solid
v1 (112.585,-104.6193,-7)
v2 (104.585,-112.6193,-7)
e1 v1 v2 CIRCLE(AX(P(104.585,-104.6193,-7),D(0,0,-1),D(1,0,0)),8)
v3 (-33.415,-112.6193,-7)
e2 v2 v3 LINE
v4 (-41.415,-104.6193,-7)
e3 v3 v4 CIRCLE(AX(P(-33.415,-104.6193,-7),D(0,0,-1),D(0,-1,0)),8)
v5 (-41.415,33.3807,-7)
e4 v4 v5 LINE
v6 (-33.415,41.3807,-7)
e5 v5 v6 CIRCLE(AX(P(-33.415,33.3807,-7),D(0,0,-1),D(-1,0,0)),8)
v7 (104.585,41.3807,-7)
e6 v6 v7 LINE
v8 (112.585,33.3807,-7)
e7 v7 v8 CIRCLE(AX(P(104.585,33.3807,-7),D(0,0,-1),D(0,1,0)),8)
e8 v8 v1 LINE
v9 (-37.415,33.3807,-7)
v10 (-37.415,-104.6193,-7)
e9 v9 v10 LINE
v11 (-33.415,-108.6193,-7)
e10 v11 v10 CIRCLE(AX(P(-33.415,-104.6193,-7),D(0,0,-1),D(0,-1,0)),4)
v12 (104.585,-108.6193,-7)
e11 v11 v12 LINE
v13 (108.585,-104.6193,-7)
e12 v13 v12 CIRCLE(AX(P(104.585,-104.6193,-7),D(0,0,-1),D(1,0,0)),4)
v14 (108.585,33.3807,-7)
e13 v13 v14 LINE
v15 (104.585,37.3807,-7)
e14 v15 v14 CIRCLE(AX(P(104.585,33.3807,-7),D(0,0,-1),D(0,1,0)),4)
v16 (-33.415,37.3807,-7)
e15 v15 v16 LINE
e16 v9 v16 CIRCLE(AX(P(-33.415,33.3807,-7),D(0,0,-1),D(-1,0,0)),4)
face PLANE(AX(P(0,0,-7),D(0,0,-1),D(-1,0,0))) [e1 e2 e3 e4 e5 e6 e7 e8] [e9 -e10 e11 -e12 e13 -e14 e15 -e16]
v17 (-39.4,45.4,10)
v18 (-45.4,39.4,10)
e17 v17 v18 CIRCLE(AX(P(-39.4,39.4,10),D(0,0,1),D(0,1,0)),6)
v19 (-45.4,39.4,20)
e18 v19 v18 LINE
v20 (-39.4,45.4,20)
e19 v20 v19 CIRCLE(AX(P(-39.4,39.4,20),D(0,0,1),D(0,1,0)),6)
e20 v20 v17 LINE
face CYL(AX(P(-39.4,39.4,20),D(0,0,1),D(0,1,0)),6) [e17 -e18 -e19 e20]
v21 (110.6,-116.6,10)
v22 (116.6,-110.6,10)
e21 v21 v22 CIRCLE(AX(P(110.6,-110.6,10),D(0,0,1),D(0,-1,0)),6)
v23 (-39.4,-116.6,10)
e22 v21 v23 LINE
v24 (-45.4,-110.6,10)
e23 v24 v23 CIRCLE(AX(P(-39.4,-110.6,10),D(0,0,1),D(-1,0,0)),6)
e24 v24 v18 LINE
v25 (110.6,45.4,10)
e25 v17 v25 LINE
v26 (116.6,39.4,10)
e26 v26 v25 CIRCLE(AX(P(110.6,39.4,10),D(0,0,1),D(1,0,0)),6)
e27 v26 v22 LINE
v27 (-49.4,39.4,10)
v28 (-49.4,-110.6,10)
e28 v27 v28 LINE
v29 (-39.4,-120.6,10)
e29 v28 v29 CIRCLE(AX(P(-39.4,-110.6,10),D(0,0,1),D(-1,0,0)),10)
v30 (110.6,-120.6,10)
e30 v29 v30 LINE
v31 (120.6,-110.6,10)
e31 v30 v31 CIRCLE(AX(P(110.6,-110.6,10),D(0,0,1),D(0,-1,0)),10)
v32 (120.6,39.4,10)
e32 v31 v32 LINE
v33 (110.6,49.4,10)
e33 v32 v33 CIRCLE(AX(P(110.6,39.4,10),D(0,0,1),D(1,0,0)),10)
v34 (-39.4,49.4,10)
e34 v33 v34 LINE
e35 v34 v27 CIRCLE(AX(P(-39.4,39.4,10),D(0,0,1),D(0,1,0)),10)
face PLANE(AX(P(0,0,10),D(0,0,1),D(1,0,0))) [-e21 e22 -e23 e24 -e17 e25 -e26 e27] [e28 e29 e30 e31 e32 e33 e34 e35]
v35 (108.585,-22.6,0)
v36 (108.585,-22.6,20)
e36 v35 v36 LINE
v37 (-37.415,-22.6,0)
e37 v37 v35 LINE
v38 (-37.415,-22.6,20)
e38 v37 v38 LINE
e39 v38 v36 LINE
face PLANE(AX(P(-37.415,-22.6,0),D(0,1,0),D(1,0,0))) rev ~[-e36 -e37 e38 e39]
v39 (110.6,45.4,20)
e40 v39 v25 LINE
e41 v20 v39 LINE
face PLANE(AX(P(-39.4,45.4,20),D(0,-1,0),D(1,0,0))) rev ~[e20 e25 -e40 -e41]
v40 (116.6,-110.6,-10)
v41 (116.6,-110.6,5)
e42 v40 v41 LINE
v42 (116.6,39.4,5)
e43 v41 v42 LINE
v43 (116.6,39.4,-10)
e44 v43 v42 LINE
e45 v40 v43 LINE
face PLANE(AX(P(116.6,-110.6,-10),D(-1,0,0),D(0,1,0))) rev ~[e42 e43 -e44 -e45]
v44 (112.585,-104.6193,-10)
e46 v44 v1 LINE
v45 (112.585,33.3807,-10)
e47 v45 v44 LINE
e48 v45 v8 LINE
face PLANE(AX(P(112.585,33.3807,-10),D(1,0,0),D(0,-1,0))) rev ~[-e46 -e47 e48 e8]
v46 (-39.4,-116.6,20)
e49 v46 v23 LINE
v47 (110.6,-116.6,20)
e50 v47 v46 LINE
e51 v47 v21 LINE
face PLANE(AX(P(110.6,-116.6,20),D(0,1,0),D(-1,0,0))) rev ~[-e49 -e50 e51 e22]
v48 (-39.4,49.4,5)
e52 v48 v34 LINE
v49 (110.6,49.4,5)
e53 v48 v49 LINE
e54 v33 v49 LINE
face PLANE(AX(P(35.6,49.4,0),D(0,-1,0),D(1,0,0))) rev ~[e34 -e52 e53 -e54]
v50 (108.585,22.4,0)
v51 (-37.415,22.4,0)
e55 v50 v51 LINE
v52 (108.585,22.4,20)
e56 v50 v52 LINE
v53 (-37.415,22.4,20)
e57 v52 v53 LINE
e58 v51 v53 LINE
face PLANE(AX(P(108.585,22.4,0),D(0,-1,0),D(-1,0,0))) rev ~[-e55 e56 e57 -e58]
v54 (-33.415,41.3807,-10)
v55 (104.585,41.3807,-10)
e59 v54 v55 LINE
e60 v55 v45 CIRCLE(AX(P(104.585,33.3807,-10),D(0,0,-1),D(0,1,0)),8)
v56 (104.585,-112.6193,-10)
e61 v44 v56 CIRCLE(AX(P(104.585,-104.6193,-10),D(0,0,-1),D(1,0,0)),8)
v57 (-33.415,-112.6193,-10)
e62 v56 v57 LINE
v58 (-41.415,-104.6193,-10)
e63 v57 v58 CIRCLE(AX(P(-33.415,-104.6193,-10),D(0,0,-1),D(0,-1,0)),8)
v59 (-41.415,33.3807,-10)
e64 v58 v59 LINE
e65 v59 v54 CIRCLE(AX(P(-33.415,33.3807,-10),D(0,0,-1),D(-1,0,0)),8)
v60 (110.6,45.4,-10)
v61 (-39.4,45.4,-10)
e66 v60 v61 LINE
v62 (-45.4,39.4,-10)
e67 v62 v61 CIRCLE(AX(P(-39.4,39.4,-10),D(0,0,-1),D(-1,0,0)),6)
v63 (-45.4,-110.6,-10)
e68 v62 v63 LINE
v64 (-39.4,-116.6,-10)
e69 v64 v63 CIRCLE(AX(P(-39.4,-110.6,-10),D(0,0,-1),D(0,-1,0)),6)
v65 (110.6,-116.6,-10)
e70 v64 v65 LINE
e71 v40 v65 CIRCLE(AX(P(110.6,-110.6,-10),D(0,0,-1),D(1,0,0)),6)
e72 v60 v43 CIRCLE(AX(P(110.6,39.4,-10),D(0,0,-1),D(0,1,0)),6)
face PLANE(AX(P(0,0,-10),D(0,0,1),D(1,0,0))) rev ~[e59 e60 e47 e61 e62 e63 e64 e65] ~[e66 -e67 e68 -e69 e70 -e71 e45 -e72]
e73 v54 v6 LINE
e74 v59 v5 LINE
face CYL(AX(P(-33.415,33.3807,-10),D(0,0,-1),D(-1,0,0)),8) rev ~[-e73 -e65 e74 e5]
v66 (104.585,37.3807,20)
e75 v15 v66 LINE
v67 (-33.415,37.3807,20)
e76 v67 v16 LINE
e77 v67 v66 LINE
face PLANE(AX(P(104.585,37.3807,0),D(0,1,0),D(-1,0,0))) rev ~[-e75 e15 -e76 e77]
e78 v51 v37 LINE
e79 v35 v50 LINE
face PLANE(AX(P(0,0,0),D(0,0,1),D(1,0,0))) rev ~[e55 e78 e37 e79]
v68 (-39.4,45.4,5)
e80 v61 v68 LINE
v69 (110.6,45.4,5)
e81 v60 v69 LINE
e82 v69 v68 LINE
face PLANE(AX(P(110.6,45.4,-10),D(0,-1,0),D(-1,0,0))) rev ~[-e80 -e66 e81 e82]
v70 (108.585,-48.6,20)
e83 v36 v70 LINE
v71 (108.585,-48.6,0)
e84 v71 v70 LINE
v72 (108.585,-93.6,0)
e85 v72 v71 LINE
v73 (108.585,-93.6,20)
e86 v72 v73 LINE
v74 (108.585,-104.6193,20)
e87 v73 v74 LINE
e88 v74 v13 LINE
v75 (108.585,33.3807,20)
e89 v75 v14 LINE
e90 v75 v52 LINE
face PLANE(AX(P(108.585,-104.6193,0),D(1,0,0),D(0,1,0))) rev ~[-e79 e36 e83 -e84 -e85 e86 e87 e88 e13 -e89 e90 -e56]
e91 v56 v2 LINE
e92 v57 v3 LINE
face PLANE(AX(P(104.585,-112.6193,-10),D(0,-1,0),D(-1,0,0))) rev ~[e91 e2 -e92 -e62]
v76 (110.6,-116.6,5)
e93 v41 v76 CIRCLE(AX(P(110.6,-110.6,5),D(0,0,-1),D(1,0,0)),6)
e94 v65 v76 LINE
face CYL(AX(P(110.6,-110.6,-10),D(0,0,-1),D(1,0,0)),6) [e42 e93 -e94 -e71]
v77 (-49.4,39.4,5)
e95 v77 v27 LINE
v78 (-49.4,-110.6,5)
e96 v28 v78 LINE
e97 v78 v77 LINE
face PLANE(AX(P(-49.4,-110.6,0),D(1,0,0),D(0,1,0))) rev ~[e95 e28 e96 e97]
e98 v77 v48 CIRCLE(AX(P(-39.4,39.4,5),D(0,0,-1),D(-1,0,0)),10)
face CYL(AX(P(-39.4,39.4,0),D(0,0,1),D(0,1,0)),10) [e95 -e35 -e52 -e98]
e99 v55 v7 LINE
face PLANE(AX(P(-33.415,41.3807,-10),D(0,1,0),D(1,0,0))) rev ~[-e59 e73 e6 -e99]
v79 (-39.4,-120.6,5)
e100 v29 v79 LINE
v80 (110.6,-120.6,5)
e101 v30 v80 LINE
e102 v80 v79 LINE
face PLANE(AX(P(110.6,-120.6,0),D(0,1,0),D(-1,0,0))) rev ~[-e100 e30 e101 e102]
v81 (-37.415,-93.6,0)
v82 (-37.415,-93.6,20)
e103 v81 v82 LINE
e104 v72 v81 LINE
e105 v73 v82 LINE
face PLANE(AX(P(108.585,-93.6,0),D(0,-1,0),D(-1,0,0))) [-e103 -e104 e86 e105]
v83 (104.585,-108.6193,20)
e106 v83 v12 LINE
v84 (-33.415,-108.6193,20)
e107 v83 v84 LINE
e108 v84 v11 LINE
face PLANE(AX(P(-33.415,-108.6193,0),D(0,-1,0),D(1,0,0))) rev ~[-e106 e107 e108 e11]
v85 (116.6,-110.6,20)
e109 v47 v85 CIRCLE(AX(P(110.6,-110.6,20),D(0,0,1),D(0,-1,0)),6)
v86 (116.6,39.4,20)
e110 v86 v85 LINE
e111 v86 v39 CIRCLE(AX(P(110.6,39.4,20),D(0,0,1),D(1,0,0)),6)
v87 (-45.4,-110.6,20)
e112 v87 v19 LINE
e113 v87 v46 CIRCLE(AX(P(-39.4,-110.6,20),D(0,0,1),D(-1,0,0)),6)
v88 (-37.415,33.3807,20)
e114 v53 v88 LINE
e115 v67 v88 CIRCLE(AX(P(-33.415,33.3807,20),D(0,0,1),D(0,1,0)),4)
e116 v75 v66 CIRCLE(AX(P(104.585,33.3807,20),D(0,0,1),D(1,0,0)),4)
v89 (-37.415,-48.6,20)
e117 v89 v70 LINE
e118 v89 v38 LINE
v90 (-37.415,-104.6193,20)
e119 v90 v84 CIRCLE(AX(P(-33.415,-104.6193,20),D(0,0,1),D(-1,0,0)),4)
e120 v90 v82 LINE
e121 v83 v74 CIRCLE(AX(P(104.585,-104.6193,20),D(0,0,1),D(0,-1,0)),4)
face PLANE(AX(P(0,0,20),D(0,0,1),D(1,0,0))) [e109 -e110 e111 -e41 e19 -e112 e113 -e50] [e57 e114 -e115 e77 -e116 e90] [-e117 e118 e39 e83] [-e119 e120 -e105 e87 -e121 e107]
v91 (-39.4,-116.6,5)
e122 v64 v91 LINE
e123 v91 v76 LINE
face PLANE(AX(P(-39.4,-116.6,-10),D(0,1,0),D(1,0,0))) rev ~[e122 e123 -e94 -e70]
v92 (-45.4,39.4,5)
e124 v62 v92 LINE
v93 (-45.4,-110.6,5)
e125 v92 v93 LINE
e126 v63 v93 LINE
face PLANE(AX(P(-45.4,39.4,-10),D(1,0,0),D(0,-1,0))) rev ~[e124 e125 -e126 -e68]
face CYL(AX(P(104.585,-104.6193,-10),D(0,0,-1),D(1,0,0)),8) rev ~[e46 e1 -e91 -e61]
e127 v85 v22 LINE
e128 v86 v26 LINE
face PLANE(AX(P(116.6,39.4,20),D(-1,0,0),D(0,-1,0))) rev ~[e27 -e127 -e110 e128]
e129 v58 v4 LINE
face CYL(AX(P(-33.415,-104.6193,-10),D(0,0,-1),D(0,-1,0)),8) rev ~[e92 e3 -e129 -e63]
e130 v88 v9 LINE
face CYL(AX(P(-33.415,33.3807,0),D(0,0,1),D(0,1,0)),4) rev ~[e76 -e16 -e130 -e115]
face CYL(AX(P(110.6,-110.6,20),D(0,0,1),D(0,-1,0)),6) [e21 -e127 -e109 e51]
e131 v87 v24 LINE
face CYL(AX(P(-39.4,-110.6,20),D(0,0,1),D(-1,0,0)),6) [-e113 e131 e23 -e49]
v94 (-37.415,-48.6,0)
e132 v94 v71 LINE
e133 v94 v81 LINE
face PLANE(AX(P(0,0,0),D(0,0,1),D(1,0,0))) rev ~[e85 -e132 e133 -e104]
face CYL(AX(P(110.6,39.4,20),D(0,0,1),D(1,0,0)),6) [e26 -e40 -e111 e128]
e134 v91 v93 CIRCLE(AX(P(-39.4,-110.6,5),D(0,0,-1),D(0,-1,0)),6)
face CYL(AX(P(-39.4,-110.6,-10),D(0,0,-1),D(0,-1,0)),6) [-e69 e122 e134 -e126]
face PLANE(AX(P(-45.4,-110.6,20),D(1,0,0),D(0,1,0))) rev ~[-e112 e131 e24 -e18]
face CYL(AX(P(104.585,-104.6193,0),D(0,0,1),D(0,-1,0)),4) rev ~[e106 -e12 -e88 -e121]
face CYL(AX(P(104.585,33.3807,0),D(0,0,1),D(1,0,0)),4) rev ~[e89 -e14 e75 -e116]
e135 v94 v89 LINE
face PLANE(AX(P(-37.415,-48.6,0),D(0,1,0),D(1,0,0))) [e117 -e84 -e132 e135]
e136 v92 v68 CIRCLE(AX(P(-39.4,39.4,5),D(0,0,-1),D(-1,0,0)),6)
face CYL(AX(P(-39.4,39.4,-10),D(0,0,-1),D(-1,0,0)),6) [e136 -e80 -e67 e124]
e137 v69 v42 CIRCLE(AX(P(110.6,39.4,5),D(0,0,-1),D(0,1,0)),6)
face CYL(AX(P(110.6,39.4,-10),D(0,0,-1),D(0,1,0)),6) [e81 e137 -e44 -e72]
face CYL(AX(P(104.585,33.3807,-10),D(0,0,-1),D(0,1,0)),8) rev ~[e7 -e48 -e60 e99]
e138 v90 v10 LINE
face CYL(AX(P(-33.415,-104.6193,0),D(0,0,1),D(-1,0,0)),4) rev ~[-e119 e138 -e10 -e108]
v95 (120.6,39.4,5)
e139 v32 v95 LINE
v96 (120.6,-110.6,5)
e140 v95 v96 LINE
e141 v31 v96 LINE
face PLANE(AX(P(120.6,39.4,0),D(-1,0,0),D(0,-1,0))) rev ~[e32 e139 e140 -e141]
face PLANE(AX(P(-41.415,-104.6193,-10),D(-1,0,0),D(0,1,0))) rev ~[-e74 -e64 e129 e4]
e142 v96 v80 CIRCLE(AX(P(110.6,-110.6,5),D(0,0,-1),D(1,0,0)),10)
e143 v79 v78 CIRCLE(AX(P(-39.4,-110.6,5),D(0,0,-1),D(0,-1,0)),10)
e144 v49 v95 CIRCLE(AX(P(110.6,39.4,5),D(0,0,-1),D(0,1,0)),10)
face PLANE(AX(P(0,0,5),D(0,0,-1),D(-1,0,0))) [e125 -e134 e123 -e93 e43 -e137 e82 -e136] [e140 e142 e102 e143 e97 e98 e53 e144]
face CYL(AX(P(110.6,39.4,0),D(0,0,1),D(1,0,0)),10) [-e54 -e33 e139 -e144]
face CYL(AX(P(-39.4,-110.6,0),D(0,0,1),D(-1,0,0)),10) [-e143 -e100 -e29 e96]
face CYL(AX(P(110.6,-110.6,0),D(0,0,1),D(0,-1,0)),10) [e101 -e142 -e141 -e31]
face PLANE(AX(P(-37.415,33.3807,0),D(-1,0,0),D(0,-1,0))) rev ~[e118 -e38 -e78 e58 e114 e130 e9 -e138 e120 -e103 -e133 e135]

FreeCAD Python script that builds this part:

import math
import FreeCAD as App
import Part
import Sketcher
from FreeCAD import Vector
Q = App.Units.Quantity

doc = App.newDocument("Part")
body = doc.addObject("PartDesign::Body", "Body")

# Sketch on XY plane
sketch1 = body.newObject("Sketcher::SketchObject", "Sketch")
sketch1.AttachmentSupport = (doc.getObject("XY_Plane"), [""])
sketch1.MapMode = "FlatFace"
sketch1.addGeometry([
    Part.LineSegment(Vector(110.6, 49.4, 0), Vector(-39.4, 49.4, 0)),  # 0
    Part.ArcOfCircle(Part.Circle(Vector(-39.4, 39.4, 0), Vector(0, 0, 1), 10), math.radians(90), math.radians(180)),  # 1
    Part.LineSegment(Vector(-49.4, 39.4, 0), Vector(-49.4, -110.6, 0)),  # 2
    Part.ArcOfCircle(Part.Circle(Vector(-39.4, -110.6, 0), Vector(0, 0, 1), 10), math.radians(180), math.radians(270)),  # 3
    Part.LineSegment(Vector(-39.4, -120.6, 0), Vector(110.6, -120.6, 0)),  # 4
    Part.ArcOfCircle(Part.Circle(Vector(110.6, -110.6, 0), Vector(0, 0, 1), 10), math.radians(-90), math.radians(0)),  # 5
    Part.LineSegment(Vector(120.6, -110.6, 0), Vector(120.6, 39.4, 0)),  # 6
    Part.ArcOfCircle(Part.Circle(Vector(110.6, 39.4, 0), Vector(0, 0, 1), 10), math.radians(0), math.radians(90)),  # 7
    Part.LineSegment(Vector(-33.4, 37.4, 0), Vector(104.6, 37.4, 0)),  # 8
    Part.ArcOfCircle(Part.Circle(Vector(104.6, 33.4, 0), Vector(0, 0, 1), 4), math.radians(0), math.radians(90)),  # 9
    Part.LineSegment(Vector(108.6, 33.4, 0), Vector(108.6, -104.6, 0)),  # 10
    Part.ArcOfCircle(Part.Circle(Vector(104.6, -104.6, 0), Vector(0, 0, 1), 4), math.radians(-90), math.radians(0)),  # 11
    Part.LineSegment(Vector(104.6, -108.6, 0), Vector(-33.4, -108.6, 0)),  # 12
    Part.ArcOfCircle(Part.Circle(Vector(-33.4, -104.6, 0), Vector(0, 0, 1), 4), math.radians(180), math.radians(270)),  # 13
    Part.LineSegment(Vector(-37.4, -104.6, 0), Vector(-37.4, 33.4, 0)),  # 14
    Part.ArcOfCircle(Part.Circle(Vector(-33.4, 33.4, 0), Vector(0, 0, 1), 4), math.radians(90), math.radians(180)),  # 15
], False)
sketch1.addConstraint([
    Sketcher.Constraint("Tangent", 0, 2, 1, 1),
    Sketcher.Constraint("Tangent", 1, 2, 2, 1),
    Sketcher.Constraint("Tangent", 2, 2, 3, 1),
    Sketcher.Constraint("Tangent", 3, 2, 4, 1),
    Sketcher.Constraint("Tangent", 4, 2, 5, 1),
    Sketcher.Constraint("Tangent", 5, 2, 6, 1),
    Sketcher.Constraint("Tangent", 6, 2, 7, 1),
    Sketcher.Constraint("Tangent", 7, 2, 0, 1),
    Sketcher.Constraint("Tangent", 8, 2, 9, 2),
    Sketcher.Constraint("Tangent", 9, 1, 10, 1),
    Sketcher.Constraint("Tangent", 10, 2, 11, 2),
    Sketcher.Constraint("Tangent", 11, 1, 12, 1),
    Sketcher.Constraint("Tangent", 12, 2, 13, 2),
    Sketcher.Constraint("Tangent", 13, 1, 14, 1),
    Sketcher.Constraint("Tangent", 14, 2, 15, 2),
    Sketcher.Constraint("Tangent", 15, 1, 8, 1),
    Sketcher.Constraint("Horizontal", 0),
    Sketcher.Constraint("Vertical", 2),
    Sketcher.Constraint("Horizontal", 4),
    Sketcher.Constraint("Vertical", 6),
    Sketcher.Constraint("Horizontal", 8),
    Sketcher.Constraint("Vertical", 10),
    Sketcher.Constraint("Horizontal", 12),
    Sketcher.Constraint("Vertical", 14),
    Sketcher.Constraint("Equal", 1, 3),
    Sketcher.Constraint("Equal", 3, 5),
    Sketcher.Constraint("Equal", 5, 7),
    Sketcher.Constraint("Equal", 9, 11),
    Sketcher.Constraint("Equal", 11, 13),
    Sketcher.Constraint("Equal", 13, 15),
    Sketcher.Constraint("Equal", 4, 2),
    Sketcher.Constraint("Equal", 12, 10),
    Sketcher.Constraint("Radius", 1, Q("10 mm")),
    Sketcher.Constraint("Radius", 9, Q("4 mm")),
    Sketcher.Constraint("DistanceX", 0, 2, 0, 1, Q("150 mm")),
    Sketcher.Constraint("DistanceX", 8, 1, 8, 2, Q("138 mm")),
    Sketcher.Constraint("DistanceX", 1, 3, -1, 1, Q("39.4 mm")),
    Sketcher.Constraint("DistanceY", -1, 1, 1, 3, Q("39.4 mm")),
    Sketcher.Constraint("DistanceX", -1, 1, 9, 3, Q("104.585 mm")),
    Sketcher.Constraint("DistanceY", -1, 1, 9, 3, Q("33.3807 mm")),
])
pad1 = body.newObject("PartDesign::Pad", "Pad")
pad1.Profile = sketch1
pad1.Length = 10
pad1.Reversed = True

# Sketch on XY plane
sketch2 = body.newObject("Sketcher::SketchObject", "Sketch001")
sketch2.AttachmentSupport = (doc.getObject("XY_Plane"), [""])
sketch2.MapMode = "FlatFace"
sketch2.addGeometry([
    Part.ArcOfCircle(Part.Circle(Vector(110.6, 39.4, 0), Vector(0, 0, 1), 10), math.radians(0), math.radians(90)),  # 0
    Part.LineSegment(Vector(110.6, 49.4, 0), Vector(-39.4, 49.4, 0)),  # 1
    Part.ArcOfCircle(Part.Circle(Vector(-39.4, 39.4, 0), Vector(0, 0, 1), 10), math.radians(90), math.radians(180)),  # 2
    Part.LineSegment(Vector(-49.4, 39.4, 0), Vector(-49.4, -110.6, 0)),  # 3
    Part.ArcOfCircle(Part.Circle(Vector(-39.4, -110.6, 0), Vector(0, 0, 1), 10), math.radians(180), math.radians(270)),  # 4
    Part.LineSegment(Vector(-39.4, -120.6, 0), Vector(110.6, -120.6, 0)),  # 5
    Part.ArcOfCircle(Part.Circle(Vector(110.6, -110.6, 0), Vector(0, 0, 1), 10), math.radians(-90), math.radians(0)),  # 6
    Part.LineSegment(Vector(120.6, -110.6, 0), Vector(120.6, 39.4, 0)),  # 7
    Part.LineSegment(Vector(-37.4, -93.6, 0), Vector(108.6, -93.6, 0)),  # 8
    Part.LineSegment(Vector(108.6, -93.6, 0), Vector(108.6, -104.6, 0)),  # 9
    Part.ArcOfCircle(Part.Circle(Vector(104.6, -104.6, 0), Vector(0, 0, 1), 4), math.radians(-90), math.radians(0)),  # 10
    Part.LineSegment(Vector(104.6, -108.6, 0), Vector(-33.4, -108.6, 0)),  # 11
    Part.ArcOfCircle(Part.Circle(Vector(-33.4, -104.6, 0), Vector(0, 0, 1), 4), math.radians(180), math.radians(270)),  # 12
    Part.LineSegment(Vector(-37.4, -104.6, 0), Vector(-37.4, -93.6, 0)),  # 13
    Part.LineSegment(Vector(108.6, -48.6, 0), Vector(-37.4, -48.6, 0)),  # 14
    Part.LineSegment(Vector(-37.4, -48.6, 0), Vector(-37.4, -22.6, 0)),  # 15
    Part.LineSegment(Vector(-37.4, -22.6, 0), Vector(108.6, -22.6, 0)),  # 16
    Part.LineSegment(Vector(108.6, -22.6, 0), Vector(108.6, -48.6, 0)),  # 17
    Part.LineSegment(Vector(108.6, 33.4, 0), Vector(108.6, 22.4, 0)),  # 18
    Part.LineSegment(Vector(108.6, 22.4, 0), Vector(-37.4, 22.4, 0)),  # 19
    Part.LineSegment(Vector(-37.4, 22.4, 0), Vector(-37.4, 33.4, 0)),  # 20
    Part.ArcOfCircle(Part.Circle(Vector(-33.4, 33.4, 0), Vector(0, 0, 1), 4), math.radians(90), math.radians(180)),  # 21
    Part.LineSegment(Vector(-33.4, 37.4, 0), Vector(104.6, 37.4, 0)),  # 22
    Part.ArcOfCircle(Part.Circle(Vector(104.6, 33.4, 0), Vector(0, 0, 1), 4), math.radians(0), math.radians(90)),  # 23
], False)
sketch2.addConstraint([
    Sketcher.Constraint("Tangent", 0, 2, 1, 1),
    Sketcher.Constraint("Tangent", 1, 2, 2, 1),
    Sketcher.Constraint("Tangent", 2, 2, 3, 1),
    Sketcher.Constraint("Tangent", 3, 2, 4, 1),
    Sketcher.Constraint("Tangent", 4, 2, 5, 1),
    Sketcher.Constraint("Tangent", 5, 2, 6, 1),
    Sketcher.Constraint("Tangent", 6, 2, 7, 1),
    Sketcher.Constraint("Tangent", 7, 2, 0, 1),
    Sketcher.Constraint("Coincident", 8, 2, 9, 1),
    Sketcher.Constraint("Tangent", 9, 2, 10, 2),
    Sketcher.Constraint("Tangent", 10, 1, 11, 1),
    Sketcher.Constraint("Tangent", 11, 2, 12, 2),
    Sketcher.Constraint("Tangent", 12, 1, 13, 1),
    Sketcher.Constraint("Coincident", 13, 2, 8, 1),
    Sketcher.Constraint("Coincident", 14, 2, 15, 1),
    Sketcher.Constraint("Coincident", 15, 2, 16, 1),
    Sketcher.Constraint("Coincident", 16, 2, 17, 1),
    Sketcher.Constraint("Coincident", 17, 2, 14, 1),
    Sketcher.Constraint("Coincident", 18, 2, 19, 1),
    Sketcher.Constraint("Coincident", 19, 2, 20, 1),
    Sketcher.Constraint("Tangent", 20, 2, 21, 2),
    Sketcher.Constraint("Tangent", 21, 1, 22, 1),
    Sketcher.Constraint("Tangent", 22, 2, 23, 2),
    Sketcher.Constraint("Tangent", 23, 1, 18, 1),
    Sketcher.Constraint("Horizontal", 1),
    Sketcher.Constraint("Vertical", 3),
    Sketcher.Constraint("Horizontal", 5),
    Sketcher.Constraint("Vertical", 7),
    Sketcher.Constraint("Horizontal", 8),
    Sketcher.Constraint("Vertical", 9),
    Sketcher.Constraint("Horizontal", 11),
    Sketcher.Constraint("Vertical", 13),
    Sketcher.Constraint("Horizontal", 14),
    Sketcher.Constraint("Vertical", 15),
    Sketcher.Constraint("Horizontal", 16),
    Sketcher.Constraint("Vertical", 17),
    Sketcher.Constraint("Vertical", 18),
    Sketcher.Constraint("Horizontal", 19),
    Sketcher.Constraint("Vertical", 20),
    Sketcher.Constraint("Horizontal", 22),
    Sketcher.Constraint("Equal", 0, 2),
    Sketcher.Constraint("Equal", 2, 4),
    Sketcher.Constraint("Equal", 4, 6),
    Sketcher.Constraint("Equal", 10, 12),
    Sketcher.Constraint("Equal", 12, 21),
    Sketcher.Constraint("Equal", 21, 23),
    Sketcher.Constraint("Vertical", 12, 3, 21, 3),
    Sketcher.Constraint("Vertical", 10, 3, 23, 3),
    Sketcher.Constraint("Vertical", 13, 2, 14, 2),
    Sketcher.Constraint("Vertical", 9, 2, 16, 2),
    Sketcher.Constraint("Equal", 5, 3),
    Sketcher.Constraint("Radius", 0, Q("10 mm")),
    Sketcher.Constraint("Radius", 10, Q("4 mm")),
    Sketcher.Constraint("DistanceY", 13, 2, 14, 2, Q("45 mm")),
    Sketcher.Constraint("DistanceY", 16, 2, 18, 2, Q("45 mm")),
    Sketcher.Constraint("DistanceX", 1, 2, 1, 1, Q("150 mm")),
    Sketcher.Constraint("DistanceX", 8, 1, 8, 2, Q("146 mm")),
    Sketcher.Constraint("DistanceY", 15, 1, 15, 2, Q("26 mm")),
    Sketcher.Constraint("DistanceY", 12, 3, 21, 3, Q("138 mm")),
    Sketcher.Constraint("DistanceY", 6, 3, 8, 2, Q("17 mm")),
    Sketcher.Constraint("DistanceX", -1, 1, 0, 3, Q("110.6 mm")),
    Sketcher.Constraint("DistanceY", -1, 1, 0, 3, Q("39.4 mm")),
    Sketcher.Constraint("DistanceY", 9, 2, 9, 1, Q("11.0193 mm")),
    Sketcher.Constraint("DistanceX", -1, 1, 10, 3, Q("104.585 mm")),
])
pad2 = body.newObject("PartDesign::Pad", "Pad001")
pad2.Profile = sketch2
pad2.Length = 20

# Sketch on XY plane
sketch3 = body.newObject("Sketcher::SketchObject", "Sketch002")
sketch3.AttachmentSupport = (doc.getObject("XY_Plane"), [""])
sketch3.MapMode = "FlatFace"
sketch3.AttachmentOffset = App.Placement(Vector(0, 0, -10), App.Rotation())
sketch3.addGeometry([
    Part.ArcOfCircle(Part.Circle(Vector(-33.4, 33.4, 0), Vector(0, 0, 1), 8), math.radians(90), math.radians(180)),  # 0
    Part.LineSegment(Vector(-33.4, 41.4, 0), Vector(104.6, 41.4, 0)),  # 1
    Part.ArcOfCircle(Part.Circle(Vector(104.6, 33.4, 0), Vector(0, 0, 1), 8), math.radians(0), math.radians(90)),  # 2
    Part.LineSegment(Vector(112.6, 33.4, 0), Vector(112.6, -104.6, 0)),  # 3
    Part.ArcOfCircle(Part.Circle(Vector(104.6, -104.6, 0), Vector(0, 0, 1), 8), math.radians(-90), math.radians(0)),  # 4
    Part.LineSegment(Vector(104.6, -112.6, 0), Vector(-33.4, -112.6, 0)),  # 5
    Part.ArcOfCircle(Part.Circle(Vector(-33.4, -104.6, 0), Vector(0, 0, 1), 8), math.radians(180), math.radians(270)),  # 6
    Part.LineSegment(Vector(-41.4, -104.6, 0), Vector(-41.4, 33.4, 0)),  # 7
    Part.ArcOfCircle(Part.Circle(Vector(104.6, -104.6, 0), Vector(0, 0, 1), 4), math.radians(-90), math.radians(0)),  # 8
    Part.LineSegment(Vector(108.6, -104.6, 0), Vector(108.6, 33.4, 0)),  # 9
    Part.ArcOfCircle(Part.Circle(Vector(104.6, 33.4, 0), Vector(0, 0, 1), 4), math.radians(0), math.radians(90)),  # 10
    Part.LineSegment(Vector(104.6, 37.4, 0), Vector(-33.4, 37.4, 0)),  # 11
    Part.ArcOfCircle(Part.Circle(Vector(-33.4, 33.4, 0), Vector(0, 0, 1), 4), math.radians(90), math.radians(180)),  # 12
    Part.LineSegment(Vector(-37.4, 33.4, 0), Vector(-37.4, -104.6, 0)),  # 13
    Part.ArcOfCircle(Part.Circle(Vector(-33.4, -104.6, 0), Vector(0, 0, 1), 4), math.radians(180), math.radians(270)),  # 14
    Part.LineSegment(Vector(-33.4, -108.6, 0), Vector(104.6, -108.6, 0)),  # 15
], False)
sketch3.addConstraint([
    Sketcher.Constraint("Tangent", 0, 1, 1, 1),
    Sketcher.Constraint("Tangent", 1, 2, 2, 2),
    Sketcher.Constraint("Tangent", 2, 1, 3, 1),
    Sketcher.Constraint("Tangent", 3, 2, 4, 2),
    Sketcher.Constraint("Tangent", 4, 1, 5, 1),
    Sketcher.Constraint("Tangent", 5, 2, 6, 2),
    Sketcher.Constraint("Tangent", 6, 1, 7, 1),
    Sketcher.Constraint("Tangent", 7, 2, 0, 2),
    Sketcher.Constraint("Tangent", 8, 2, 9, 1),
    Sketcher.Constraint("Tangent", 9, 2, 10, 1),
    Sketcher.Constraint("Tangent", 10, 2, 11, 1),
    Sketcher.Constraint("Tangent", 11, 2, 12, 1),
    Sketcher.Constraint("Tangent", 12, 2, 13, 1),
    Sketcher.Constraint("Tangent", 13, 2, 14, 1),
    Sketcher.Constraint("Tangent", 14, 2, 15, 1),
    Sketcher.Constraint("Tangent", 15, 2, 8, 1),
    Sketcher.Constraint("Horizontal", 1),
    Sketcher.Constraint("Vertical", 3),
    Sketcher.Constraint("Horizontal", 5),
    Sketcher.Constraint("Vertical", 7),
    Sketcher.Constraint("Vertical", 9),
    Sketcher.Constraint("Horizontal", 11),
    Sketcher.Constraint("Vertical", 13),
    Sketcher.Constraint("Horizontal", 15),
    Sketcher.Constraint("Coincident", 8, 3, 4, 3),
    Sketcher.Constraint("Coincident", 10, 3, 2, 3),
    Sketcher.Constraint("Coincident", 12, 3, 0, 3),
    Sketcher.Constraint("Equal", 0, 2),
    Sketcher.Constraint("Equal", 2, 4),
    Sketcher.Constraint("Equal", 4, 6),
    Sketcher.Constraint("Equal", 12, 14),
    Sketcher.Constraint("Equal", 15, 3),
    Sketcher.Constraint("Radius", 8, Q("4 mm")),
    Sketcher.Constraint("Radius", 0, Q("8 mm")),
    Sketcher.Constraint("DistanceX", 1, 1, 1, 2, Q("138 mm")),
    Sketcher.Constraint("DistanceX", 0, 3, -1, 1, Q("33.415 mm")),
    Sketcher.Constraint("DistanceY", -1, 1, 0, 3, Q("33.3807 mm")),
])
pocket1 = body.newObject("PartDesign::Pocket", "Pocket")
pocket1.Profile = sketch3
pocket1.Length = 3
pocket1.Reversed = True

# Sketch on XY plane
sketch4 = body.newObject("Sketcher::SketchObject", "Sketch003")
sketch4.AttachmentSupport = (doc.getObject("XY_Plane"), [""])
sketch4.MapMode = "FlatFace"
sketch4.AttachmentOffset = App.Placement(Vector(0, 0, -10), App.Rotation())
sketch4.addGeometry([
    Part.ArcOfCircle(Part.Circle(Vector(-39, 39, 0), Vector(0, 0, 1), 10), math.radians(90), math.radians(180)),  # 0
    Part.LineSegment(Vector(-39, 49, 0), Vector(111, 49, 0)),  # 1
    Part.ArcOfCircle(Part.Circle(Vector(111, 39, 0), Vector(0, 0, 1), 10), math.radians(0), math.radians(90)),  # 2
    Part.LineSegment(Vector(121, 39, 0), Vector(121, -111, 0)),  # 3
    Part.ArcOfCircle(Part.Circle(Vector(111, -111, 0), Vector(0, 0, 1), 10), math.radians(-90), math.radians(0)),  # 4
    Part.LineSegment(Vector(111, -121, 0), Vector(-39, -121, 0)),  # 5
    Part.ArcOfCircle(Part.Circle(Vector(-39, -111, 0), Vector(0, 0, 1), 10), math.radians(180), math.radians(270)),  # 6
    Part.LineSegment(Vector(-49, -111, 0), Vector(-49, 39, 0)),  # 7
    Part.ArcOfCircle(Part.Circle(Vector(111, 39, 0), Vector(0, 0, 1), 6), math.radians(0), math.radians(90)),  # 8
    Part.LineSegment(Vector(111, 45, 0), Vector(-39, 45, 0)),  # 9
    Part.ArcOfCircle(Part.Circle(Vector(-39, 39, 0), Vector(0, 0, 1), 6), math.radians(90), math.radians(180)),  # 10
    Part.LineSegment(Vector(-45, 39, 0), Vector(-45, -111, 0)),  # 11
    Part.ArcOfCircle(Part.Circle(Vector(-39, -111, 0), Vector(0, 0, 1), 6), math.radians(180), math.radians(270)),  # 12
    Part.LineSegment(Vector(-39, -117, 0), Vector(111, -117, 0)),  # 13
    Part.ArcOfCircle(Part.Circle(Vector(111, -111, 0), Vector(0, 0, 1), 6), math.radians(-90), math.radians(0)),  # 14
    Part.LineSegment(Vector(117, -111, 0), Vector(117, 39, 0)),  # 15
], False)
sketch4.addConstraint([
    Sketcher.Constraint("Tangent", 0, 1, 1, 1),
    Sketcher.Constraint("Tangent", 1, 2, 2, 2),
    Sketcher.Constraint("Tangent", 2, 1, 3, 1),
    Sketcher.Constraint("Tangent", 3, 2, 4, 2),
    Sketcher.Constraint("Tangent", 4, 1, 5, 1),
    Sketcher.Constraint("Tangent", 5, 2, 6, 2),
    Sketcher.Constraint("Tangent", 6, 1, 7, 1),
    Sketcher.Constraint("Tangent", 7, 2, 0, 2),
    Sketcher.Constraint("Tangent", 8, 2, 9, 1),
    Sketcher.Constraint("Tangent", 9, 2, 10, 1),
    Sketcher.Constraint("Tangent", 10, 2, 11, 1),
    Sketcher.Constraint("Tangent", 11, 2, 12, 1),
    Sketcher.Constraint("Tangent", 12, 2, 13, 1),
    Sketcher.Constraint("Tangent", 13, 2, 14, 1),
    Sketcher.Constraint("Tangent", 14, 2, 15, 1),
    Sketcher.Constraint("Tangent", 15, 2, 8, 1),
    Sketcher.Constraint("Horizontal", 1),
    Sketcher.Constraint("Vertical", 3),
    Sketcher.Constraint("Horizontal", 5),
    Sketcher.Constraint("Vertical", 7),
    Sketcher.Constraint("Horizontal", 9),
    Sketcher.Constraint("Vertical", 11),
    Sketcher.Constraint("Horizontal", 13),
    Sketcher.Constraint("Vertical", 15),
    Sketcher.Constraint("Coincident", 8, 3, 2, 3),
    Sketcher.Constraint("Coincident", 10, 3, 0, 3),
    Sketcher.Constraint("Coincident", 12, 3, 6, 3),
    Sketcher.Constraint("Equal", 0, 2),
    Sketcher.Constraint("Equal", 2, 4),
    Sketcher.Constraint("Equal", 4, 6),
    Sketcher.Constraint("Equal", 12, 14),
    Sketcher.Constraint("Equal", 13, 3),
    Sketcher.Constraint("Radius", 0, Q("10 mm")),
    Sketcher.Constraint("Radius", 8, Q("6 mm")),
    Sketcher.Constraint("DistanceX", 1, 1, 1, 2, Q("150 mm")),
    Sketcher.Constraint("DistanceX", 0, 3, -1, 1, Q("39.4 mm")),
    Sketcher.Constraint("DistanceY", -1, 1, 0, 3, Q("39.4 mm")),
])
pocket2 = body.newObject("PartDesign::Pocket", "Pocket001")
pocket2.Profile = sketch4
pocket2.Length = 15
pocket2.Reversed = True

# Sketch on XY plane
sketch5 = body.newObject("Sketcher::SketchObject", "Sketch004")
sketch5.AttachmentSupport = (doc.getObject("XY_Plane"), [""])
sketch5.MapMode = "FlatFace"
sketch5.AttachmentOffset = App.Placement(Vector(0, 0, 20), App.Rotation())
sketch5.addGeometry([
    Part.ArcOfCircle(Part.Circle(Vector(111, 39, 0), Vector(0, 0, 1), 10), math.radians(0), math.radians(90)),  # 0
    Part.LineSegment(Vector(111, 49, 0), Vector(-39, 49, 0)),  # 1
    Part.ArcOfCircle(Part.Circle(Vector(-39, 39, 0), Vector(0, 0, 1), 10), math.radians(90), math.radians(180)),  # 2
    Part.LineSegment(Vector(-49, 39, 0), Vector(-49, -111, 0)),  # 3
    Part.ArcOfCircle(Part.Circle(Vector(-39, -111, 0), Vector(0, 0, 1), 10), math.radians(180), math.radians(270)),  # 4
    Part.LineSegment(Vector(-39, -121, 0), Vector(111, -121, 0)),  # 5
    Part.ArcOfCircle(Part.Circle(Vector(111, -111, 0), Vector(0, 0, 1), 10), math.radians(-90), math.radians(0)),  # 6
    Part.LineSegment(Vector(121, -111, 0), Vector(121, 39, 0)),  # 7
    Part.ArcOfCircle(Part.Circle(Vector(-39, 39, 0), Vector(0, 0, 1), 6), math.radians(90), math.radians(180)),  # 8
    Part.LineSegment(Vector(-39, 45, 0), Vector(111, 45, 0)),  # 9
    Part.ArcOfCircle(Part.Circle(Vector(111, 39, 0), Vector(0, 0, 1), 6), math.radians(0), math.radians(90)),  # 10
    Part.LineSegment(Vector(117, 39, 0), Vector(117, -111, 0)),  # 11
    Part.ArcOfCircle(Part.Circle(Vector(111, -111, 0), Vector(0, 0, 1), 6), math.radians(-90), math.radians(0)),  # 12
    Part.LineSegment(Vector(111, -117, 0), Vector(-39, -117, 0)),  # 13
    Part.ArcOfCircle(Part.Circle(Vector(-39, -111, 0), Vector(0, 0, 1), 6), math.radians(180), math.radians(270)),  # 14
    Part.LineSegment(Vector(-45, -111, 0), Vector(-45, 39, 0)),  # 15
], False)
sketch5.addConstraint([
    Sketcher.Constraint("Tangent", 0, 2, 1, 1),
    Sketcher.Constraint("Tangent", 1, 2, 2, 1),
    Sketcher.Constraint("Tangent", 2, 2, 3, 1),
    Sketcher.Constraint("Tangent", 3, 2, 4, 1),
    Sketcher.Constraint("Tangent", 4, 2, 5, 1),
    Sketcher.Constraint("Tangent", 5, 2, 6, 1),
    Sketcher.Constraint("Tangent", 6, 2, 7, 1),
    Sketcher.Constraint("Tangent", 7, 2, 0, 1),
    Sketcher.Constraint("Tangent", 8, 1, 9, 1),
    Sketcher.Constraint("Tangent", 9, 2, 10, 2),
    Sketcher.Constraint("Tangent", 10, 1, 11, 1),
    Sketcher.Constraint("Tangent", 11, 2, 12, 2),
    Sketcher.Constraint("Tangent", 12, 1, 13, 1),
    Sketcher.Constraint("Tangent", 13, 2, 14, 2),
    Sketcher.Constraint("Tangent", 14, 1, 15, 1),
    Sketcher.Constraint("Tangent", 15, 2, 8, 2),
    Sketcher.Constraint("Horizontal", 1),
    Sketcher.Constraint("Vertical", 3),
    Sketcher.Constraint("Horizontal", 5),
    Sketcher.Constraint("Vertical", 7),
    Sketcher.Constraint("Horizontal", 9),
    Sketcher.Constraint("Vertical", 11),
    Sketcher.Constraint("Horizontal", 13),
    Sketcher.Constraint("Vertical", 15),
    Sketcher.Constraint("Coincident", 8, 3, 2, 3),
    Sketcher.Constraint("Coincident", 10, 3, 0, 3),
    Sketcher.Constraint("Coincident", 12, 3, 6, 3),
    Sketcher.Constraint("Equal", 0, 2),
    Sketcher.Constraint("Equal", 2, 4),
    Sketcher.Constraint("Equal", 4, 6),
    Sketcher.Constraint("Equal", 12, 14),
    Sketcher.Constraint("Equal", 13, 3),
    Sketcher.Constraint("Radius", 0, Q("10 mm")),
    Sketcher.Constraint("Radius", 8, Q("6 mm")),
    Sketcher.Constraint("DistanceX", 1, 2, 1, 1, Q("150 mm")),
    Sketcher.Constraint("DistanceX", -1, 1, 0, 3, Q("110.6 mm")),
    Sketcher.Constraint("DistanceY", -1, 1, 0, 3, Q("39.4 mm")),
])
pocket3 = body.newObject("PartDesign::Pocket", "Pocket002")
pocket3.Profile = sketch5
pocket3.Length = 10

doc.recompute()
